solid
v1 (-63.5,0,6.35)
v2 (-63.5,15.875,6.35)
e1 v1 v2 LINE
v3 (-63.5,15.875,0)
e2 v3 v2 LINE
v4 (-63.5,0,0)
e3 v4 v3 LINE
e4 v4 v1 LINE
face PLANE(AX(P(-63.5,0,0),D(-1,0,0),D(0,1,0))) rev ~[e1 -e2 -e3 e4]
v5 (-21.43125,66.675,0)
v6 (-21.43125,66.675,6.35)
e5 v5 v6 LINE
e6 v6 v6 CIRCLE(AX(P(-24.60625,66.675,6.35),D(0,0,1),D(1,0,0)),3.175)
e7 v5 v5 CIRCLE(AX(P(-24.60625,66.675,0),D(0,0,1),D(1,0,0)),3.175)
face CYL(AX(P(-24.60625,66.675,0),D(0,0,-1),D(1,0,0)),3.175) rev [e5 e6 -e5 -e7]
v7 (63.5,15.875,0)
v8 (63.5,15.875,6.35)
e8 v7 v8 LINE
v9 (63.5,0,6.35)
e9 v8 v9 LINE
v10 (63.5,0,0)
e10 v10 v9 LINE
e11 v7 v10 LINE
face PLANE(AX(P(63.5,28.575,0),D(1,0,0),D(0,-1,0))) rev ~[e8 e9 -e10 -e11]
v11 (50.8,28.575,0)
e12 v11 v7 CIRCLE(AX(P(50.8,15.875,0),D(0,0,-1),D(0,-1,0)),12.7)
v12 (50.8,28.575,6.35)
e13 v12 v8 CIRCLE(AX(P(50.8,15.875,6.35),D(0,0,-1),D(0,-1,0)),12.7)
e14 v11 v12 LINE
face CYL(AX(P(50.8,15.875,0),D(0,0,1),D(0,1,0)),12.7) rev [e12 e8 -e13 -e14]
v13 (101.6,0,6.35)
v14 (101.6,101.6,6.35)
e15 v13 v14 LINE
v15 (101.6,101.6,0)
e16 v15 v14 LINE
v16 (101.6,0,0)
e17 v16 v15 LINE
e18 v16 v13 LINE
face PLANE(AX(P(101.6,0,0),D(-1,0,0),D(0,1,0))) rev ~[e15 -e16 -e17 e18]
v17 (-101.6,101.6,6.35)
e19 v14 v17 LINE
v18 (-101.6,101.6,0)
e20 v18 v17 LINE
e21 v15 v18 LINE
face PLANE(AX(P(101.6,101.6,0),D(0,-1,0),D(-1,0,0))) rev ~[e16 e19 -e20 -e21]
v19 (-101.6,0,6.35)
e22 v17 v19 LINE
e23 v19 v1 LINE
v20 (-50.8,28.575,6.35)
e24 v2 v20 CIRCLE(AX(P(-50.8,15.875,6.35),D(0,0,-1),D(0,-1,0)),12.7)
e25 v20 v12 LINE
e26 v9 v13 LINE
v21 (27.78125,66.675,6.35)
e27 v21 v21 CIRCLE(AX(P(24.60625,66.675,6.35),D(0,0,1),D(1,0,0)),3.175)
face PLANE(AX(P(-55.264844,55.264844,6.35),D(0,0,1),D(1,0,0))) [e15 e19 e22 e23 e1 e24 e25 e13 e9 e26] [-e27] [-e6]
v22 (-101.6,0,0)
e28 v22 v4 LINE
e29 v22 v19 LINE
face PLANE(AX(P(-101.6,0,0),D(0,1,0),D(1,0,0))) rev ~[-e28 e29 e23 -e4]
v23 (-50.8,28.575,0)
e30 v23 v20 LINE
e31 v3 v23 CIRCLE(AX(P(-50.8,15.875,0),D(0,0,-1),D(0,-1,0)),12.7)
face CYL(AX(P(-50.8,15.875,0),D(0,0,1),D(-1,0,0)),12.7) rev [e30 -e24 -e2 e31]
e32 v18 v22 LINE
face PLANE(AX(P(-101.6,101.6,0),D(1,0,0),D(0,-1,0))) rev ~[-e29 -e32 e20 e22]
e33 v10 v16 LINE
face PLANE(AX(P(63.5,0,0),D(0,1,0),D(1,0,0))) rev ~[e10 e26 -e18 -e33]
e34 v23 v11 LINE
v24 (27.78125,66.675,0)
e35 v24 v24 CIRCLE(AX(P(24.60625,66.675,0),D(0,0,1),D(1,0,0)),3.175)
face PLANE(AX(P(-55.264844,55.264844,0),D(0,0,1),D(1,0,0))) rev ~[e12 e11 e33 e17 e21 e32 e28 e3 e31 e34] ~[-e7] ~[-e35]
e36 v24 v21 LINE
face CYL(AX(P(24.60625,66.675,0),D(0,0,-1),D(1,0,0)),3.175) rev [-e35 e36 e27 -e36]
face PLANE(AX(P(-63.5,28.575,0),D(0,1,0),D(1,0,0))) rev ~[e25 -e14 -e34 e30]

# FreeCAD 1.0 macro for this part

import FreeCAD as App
import Part
import Sketcher
from FreeCAD import Vector
Q = App.Units.Quantity


def edges_at(feature, points):
    """Names of the edges that pass closest to the given points."""
    edges = feature.Shape.Edges
    near = lambda p: min(range(len(edges)), key=lambda i: edges[i].distToShape(Part.Vertex(*p))[0])
    return sorted({f"Edge{near(p) + 1}" for p in points})

doc = App.newDocument("Part")
body = doc.addObject("PartDesign::Body", "Body")

sketch1 = doc.addObject("Sketcher::SketchObject", "Sketch")
body.addObject(sketch1)
sketch1.AttachmentSupport = (doc.XY_Plane, [""])
sketch1.MapMode = "FlatFace"
sketch1.addGeometry([
    Part.LineSegment(Vector(-101.6, 101.6, 0), Vector(-101.6, 0, 0)),
    Part.LineSegment(Vector(-101.6, 0, 0), Vector(-63.5, 0, 0)),
    Part.LineSegment(Vector(-63.5, 0, 0), Vector(-63.5, 28.6, 0)),
    Part.LineSegment(Vector(-63.5, 28.6, 0), Vector(63.5, 28.6, 0)),
    Part.LineSegment(Vector(63.5, 28.6, 0), Vector(63.5, 0, 0)),
    Part.LineSegment(Vector(63.5, 0, 0), Vector(101.6, 0, 0)),
    Part.LineSegment(Vector(101.6, 0, 0), Vector(101.6, 101.6, 0)),
    Part.LineSegment(Vector(101.6, 101.6, 0), Vector(-101.6, 101.6, 0)),
    Part.Circle(Vector(-24.6, 66.7, 0), Vector(0, 0, 1), 3.2),
    Part.Circle(Vector(24.6, 66.7, 0), Vector(0, 0, 1), 3.2),
], False)
sketch1.addConstraint([
    Sketcher.Constraint("Coincident", 0, 2, 1, 1),
    Sketcher.Constraint("Coincident", 1, 2, 2, 1),
    Sketcher.Constraint("Coincident", 2, 2, 3, 1),
    Sketcher.Constraint("Coincident", 3, 2, 4, 1),
    Sketcher.Constraint("Coincident", 4, 2, 5, 1),
    Sketcher.Constraint("Coincident", 5, 2, 6, 1),
    Sketcher.Constraint("Coincident", 6, 2, 7, 1),
    Sketcher.Constraint("Coincident", 7, 2, 0, 1),
    Sketcher.Constraint("Vertical", 0),
    Sketcher.Constraint("Horizontal", 1),
    Sketcher.Constraint("Vertical", 2),
    Sketcher.Constraint("Horizontal", 3),
    Sketcher.Constraint("Vertical", 4),
    Sketcher.Constraint("Horizontal", 5),
    Sketcher.Constraint("Vertical", 6),
    Sketcher.Constraint("Horizontal", 7),
    Sketcher.Constraint("Equal", 8, 9),
    Sketcher.Constraint("Symmetric", 1, 2, 4, 2, -1, 1),
    Sketcher.Constraint("Symmetric", 8, 3, 9, 3, -2),
    Sketcher.Constraint("Symmetric", 0, 2, 5, 2, -2),
    Sketcher.Constraint("Diameter", 8, Q("0.25 in")),
    Sketcher.Constraint("DistanceX", 3, 1, 3, 2, Q("5 in")),
    Sketcher.Constraint("DistanceX", 7, 2, 7, 1, Q("8 in")),
    Sketcher.Constraint("DistanceY", 0, 2, 0, 1, Q("4 in")),
    Sketcher.Constraint("DistanceY", 2, 2, 8, 3, Q("1.5 in")),
    Sketcher.Constraint("DistanceY", 2, 1, 2, 2, Q("1.125 in")),
    Sketcher.Constraint("DistanceX", 8, 3, -1, 1, Q("0.96875 in")),
])
pad1 = doc.addObject("PartDesign::Pad", "Pad")
body.addObject(pad1)
pad1.Profile = sketch1
pad1.Length = Q("0.25 in")
doc.recompute()

fillet = doc.addObject("PartDesign::Fillet", "Fillet")
body.addObject(fillet)
fillet.Base = (pad1, edges_at(pad1, [(-63.5, 28.575, 3.175), (63.5, 28.575, 3.175)]))
fillet.Radius = Q("0.5 in")

doc.recompute()
